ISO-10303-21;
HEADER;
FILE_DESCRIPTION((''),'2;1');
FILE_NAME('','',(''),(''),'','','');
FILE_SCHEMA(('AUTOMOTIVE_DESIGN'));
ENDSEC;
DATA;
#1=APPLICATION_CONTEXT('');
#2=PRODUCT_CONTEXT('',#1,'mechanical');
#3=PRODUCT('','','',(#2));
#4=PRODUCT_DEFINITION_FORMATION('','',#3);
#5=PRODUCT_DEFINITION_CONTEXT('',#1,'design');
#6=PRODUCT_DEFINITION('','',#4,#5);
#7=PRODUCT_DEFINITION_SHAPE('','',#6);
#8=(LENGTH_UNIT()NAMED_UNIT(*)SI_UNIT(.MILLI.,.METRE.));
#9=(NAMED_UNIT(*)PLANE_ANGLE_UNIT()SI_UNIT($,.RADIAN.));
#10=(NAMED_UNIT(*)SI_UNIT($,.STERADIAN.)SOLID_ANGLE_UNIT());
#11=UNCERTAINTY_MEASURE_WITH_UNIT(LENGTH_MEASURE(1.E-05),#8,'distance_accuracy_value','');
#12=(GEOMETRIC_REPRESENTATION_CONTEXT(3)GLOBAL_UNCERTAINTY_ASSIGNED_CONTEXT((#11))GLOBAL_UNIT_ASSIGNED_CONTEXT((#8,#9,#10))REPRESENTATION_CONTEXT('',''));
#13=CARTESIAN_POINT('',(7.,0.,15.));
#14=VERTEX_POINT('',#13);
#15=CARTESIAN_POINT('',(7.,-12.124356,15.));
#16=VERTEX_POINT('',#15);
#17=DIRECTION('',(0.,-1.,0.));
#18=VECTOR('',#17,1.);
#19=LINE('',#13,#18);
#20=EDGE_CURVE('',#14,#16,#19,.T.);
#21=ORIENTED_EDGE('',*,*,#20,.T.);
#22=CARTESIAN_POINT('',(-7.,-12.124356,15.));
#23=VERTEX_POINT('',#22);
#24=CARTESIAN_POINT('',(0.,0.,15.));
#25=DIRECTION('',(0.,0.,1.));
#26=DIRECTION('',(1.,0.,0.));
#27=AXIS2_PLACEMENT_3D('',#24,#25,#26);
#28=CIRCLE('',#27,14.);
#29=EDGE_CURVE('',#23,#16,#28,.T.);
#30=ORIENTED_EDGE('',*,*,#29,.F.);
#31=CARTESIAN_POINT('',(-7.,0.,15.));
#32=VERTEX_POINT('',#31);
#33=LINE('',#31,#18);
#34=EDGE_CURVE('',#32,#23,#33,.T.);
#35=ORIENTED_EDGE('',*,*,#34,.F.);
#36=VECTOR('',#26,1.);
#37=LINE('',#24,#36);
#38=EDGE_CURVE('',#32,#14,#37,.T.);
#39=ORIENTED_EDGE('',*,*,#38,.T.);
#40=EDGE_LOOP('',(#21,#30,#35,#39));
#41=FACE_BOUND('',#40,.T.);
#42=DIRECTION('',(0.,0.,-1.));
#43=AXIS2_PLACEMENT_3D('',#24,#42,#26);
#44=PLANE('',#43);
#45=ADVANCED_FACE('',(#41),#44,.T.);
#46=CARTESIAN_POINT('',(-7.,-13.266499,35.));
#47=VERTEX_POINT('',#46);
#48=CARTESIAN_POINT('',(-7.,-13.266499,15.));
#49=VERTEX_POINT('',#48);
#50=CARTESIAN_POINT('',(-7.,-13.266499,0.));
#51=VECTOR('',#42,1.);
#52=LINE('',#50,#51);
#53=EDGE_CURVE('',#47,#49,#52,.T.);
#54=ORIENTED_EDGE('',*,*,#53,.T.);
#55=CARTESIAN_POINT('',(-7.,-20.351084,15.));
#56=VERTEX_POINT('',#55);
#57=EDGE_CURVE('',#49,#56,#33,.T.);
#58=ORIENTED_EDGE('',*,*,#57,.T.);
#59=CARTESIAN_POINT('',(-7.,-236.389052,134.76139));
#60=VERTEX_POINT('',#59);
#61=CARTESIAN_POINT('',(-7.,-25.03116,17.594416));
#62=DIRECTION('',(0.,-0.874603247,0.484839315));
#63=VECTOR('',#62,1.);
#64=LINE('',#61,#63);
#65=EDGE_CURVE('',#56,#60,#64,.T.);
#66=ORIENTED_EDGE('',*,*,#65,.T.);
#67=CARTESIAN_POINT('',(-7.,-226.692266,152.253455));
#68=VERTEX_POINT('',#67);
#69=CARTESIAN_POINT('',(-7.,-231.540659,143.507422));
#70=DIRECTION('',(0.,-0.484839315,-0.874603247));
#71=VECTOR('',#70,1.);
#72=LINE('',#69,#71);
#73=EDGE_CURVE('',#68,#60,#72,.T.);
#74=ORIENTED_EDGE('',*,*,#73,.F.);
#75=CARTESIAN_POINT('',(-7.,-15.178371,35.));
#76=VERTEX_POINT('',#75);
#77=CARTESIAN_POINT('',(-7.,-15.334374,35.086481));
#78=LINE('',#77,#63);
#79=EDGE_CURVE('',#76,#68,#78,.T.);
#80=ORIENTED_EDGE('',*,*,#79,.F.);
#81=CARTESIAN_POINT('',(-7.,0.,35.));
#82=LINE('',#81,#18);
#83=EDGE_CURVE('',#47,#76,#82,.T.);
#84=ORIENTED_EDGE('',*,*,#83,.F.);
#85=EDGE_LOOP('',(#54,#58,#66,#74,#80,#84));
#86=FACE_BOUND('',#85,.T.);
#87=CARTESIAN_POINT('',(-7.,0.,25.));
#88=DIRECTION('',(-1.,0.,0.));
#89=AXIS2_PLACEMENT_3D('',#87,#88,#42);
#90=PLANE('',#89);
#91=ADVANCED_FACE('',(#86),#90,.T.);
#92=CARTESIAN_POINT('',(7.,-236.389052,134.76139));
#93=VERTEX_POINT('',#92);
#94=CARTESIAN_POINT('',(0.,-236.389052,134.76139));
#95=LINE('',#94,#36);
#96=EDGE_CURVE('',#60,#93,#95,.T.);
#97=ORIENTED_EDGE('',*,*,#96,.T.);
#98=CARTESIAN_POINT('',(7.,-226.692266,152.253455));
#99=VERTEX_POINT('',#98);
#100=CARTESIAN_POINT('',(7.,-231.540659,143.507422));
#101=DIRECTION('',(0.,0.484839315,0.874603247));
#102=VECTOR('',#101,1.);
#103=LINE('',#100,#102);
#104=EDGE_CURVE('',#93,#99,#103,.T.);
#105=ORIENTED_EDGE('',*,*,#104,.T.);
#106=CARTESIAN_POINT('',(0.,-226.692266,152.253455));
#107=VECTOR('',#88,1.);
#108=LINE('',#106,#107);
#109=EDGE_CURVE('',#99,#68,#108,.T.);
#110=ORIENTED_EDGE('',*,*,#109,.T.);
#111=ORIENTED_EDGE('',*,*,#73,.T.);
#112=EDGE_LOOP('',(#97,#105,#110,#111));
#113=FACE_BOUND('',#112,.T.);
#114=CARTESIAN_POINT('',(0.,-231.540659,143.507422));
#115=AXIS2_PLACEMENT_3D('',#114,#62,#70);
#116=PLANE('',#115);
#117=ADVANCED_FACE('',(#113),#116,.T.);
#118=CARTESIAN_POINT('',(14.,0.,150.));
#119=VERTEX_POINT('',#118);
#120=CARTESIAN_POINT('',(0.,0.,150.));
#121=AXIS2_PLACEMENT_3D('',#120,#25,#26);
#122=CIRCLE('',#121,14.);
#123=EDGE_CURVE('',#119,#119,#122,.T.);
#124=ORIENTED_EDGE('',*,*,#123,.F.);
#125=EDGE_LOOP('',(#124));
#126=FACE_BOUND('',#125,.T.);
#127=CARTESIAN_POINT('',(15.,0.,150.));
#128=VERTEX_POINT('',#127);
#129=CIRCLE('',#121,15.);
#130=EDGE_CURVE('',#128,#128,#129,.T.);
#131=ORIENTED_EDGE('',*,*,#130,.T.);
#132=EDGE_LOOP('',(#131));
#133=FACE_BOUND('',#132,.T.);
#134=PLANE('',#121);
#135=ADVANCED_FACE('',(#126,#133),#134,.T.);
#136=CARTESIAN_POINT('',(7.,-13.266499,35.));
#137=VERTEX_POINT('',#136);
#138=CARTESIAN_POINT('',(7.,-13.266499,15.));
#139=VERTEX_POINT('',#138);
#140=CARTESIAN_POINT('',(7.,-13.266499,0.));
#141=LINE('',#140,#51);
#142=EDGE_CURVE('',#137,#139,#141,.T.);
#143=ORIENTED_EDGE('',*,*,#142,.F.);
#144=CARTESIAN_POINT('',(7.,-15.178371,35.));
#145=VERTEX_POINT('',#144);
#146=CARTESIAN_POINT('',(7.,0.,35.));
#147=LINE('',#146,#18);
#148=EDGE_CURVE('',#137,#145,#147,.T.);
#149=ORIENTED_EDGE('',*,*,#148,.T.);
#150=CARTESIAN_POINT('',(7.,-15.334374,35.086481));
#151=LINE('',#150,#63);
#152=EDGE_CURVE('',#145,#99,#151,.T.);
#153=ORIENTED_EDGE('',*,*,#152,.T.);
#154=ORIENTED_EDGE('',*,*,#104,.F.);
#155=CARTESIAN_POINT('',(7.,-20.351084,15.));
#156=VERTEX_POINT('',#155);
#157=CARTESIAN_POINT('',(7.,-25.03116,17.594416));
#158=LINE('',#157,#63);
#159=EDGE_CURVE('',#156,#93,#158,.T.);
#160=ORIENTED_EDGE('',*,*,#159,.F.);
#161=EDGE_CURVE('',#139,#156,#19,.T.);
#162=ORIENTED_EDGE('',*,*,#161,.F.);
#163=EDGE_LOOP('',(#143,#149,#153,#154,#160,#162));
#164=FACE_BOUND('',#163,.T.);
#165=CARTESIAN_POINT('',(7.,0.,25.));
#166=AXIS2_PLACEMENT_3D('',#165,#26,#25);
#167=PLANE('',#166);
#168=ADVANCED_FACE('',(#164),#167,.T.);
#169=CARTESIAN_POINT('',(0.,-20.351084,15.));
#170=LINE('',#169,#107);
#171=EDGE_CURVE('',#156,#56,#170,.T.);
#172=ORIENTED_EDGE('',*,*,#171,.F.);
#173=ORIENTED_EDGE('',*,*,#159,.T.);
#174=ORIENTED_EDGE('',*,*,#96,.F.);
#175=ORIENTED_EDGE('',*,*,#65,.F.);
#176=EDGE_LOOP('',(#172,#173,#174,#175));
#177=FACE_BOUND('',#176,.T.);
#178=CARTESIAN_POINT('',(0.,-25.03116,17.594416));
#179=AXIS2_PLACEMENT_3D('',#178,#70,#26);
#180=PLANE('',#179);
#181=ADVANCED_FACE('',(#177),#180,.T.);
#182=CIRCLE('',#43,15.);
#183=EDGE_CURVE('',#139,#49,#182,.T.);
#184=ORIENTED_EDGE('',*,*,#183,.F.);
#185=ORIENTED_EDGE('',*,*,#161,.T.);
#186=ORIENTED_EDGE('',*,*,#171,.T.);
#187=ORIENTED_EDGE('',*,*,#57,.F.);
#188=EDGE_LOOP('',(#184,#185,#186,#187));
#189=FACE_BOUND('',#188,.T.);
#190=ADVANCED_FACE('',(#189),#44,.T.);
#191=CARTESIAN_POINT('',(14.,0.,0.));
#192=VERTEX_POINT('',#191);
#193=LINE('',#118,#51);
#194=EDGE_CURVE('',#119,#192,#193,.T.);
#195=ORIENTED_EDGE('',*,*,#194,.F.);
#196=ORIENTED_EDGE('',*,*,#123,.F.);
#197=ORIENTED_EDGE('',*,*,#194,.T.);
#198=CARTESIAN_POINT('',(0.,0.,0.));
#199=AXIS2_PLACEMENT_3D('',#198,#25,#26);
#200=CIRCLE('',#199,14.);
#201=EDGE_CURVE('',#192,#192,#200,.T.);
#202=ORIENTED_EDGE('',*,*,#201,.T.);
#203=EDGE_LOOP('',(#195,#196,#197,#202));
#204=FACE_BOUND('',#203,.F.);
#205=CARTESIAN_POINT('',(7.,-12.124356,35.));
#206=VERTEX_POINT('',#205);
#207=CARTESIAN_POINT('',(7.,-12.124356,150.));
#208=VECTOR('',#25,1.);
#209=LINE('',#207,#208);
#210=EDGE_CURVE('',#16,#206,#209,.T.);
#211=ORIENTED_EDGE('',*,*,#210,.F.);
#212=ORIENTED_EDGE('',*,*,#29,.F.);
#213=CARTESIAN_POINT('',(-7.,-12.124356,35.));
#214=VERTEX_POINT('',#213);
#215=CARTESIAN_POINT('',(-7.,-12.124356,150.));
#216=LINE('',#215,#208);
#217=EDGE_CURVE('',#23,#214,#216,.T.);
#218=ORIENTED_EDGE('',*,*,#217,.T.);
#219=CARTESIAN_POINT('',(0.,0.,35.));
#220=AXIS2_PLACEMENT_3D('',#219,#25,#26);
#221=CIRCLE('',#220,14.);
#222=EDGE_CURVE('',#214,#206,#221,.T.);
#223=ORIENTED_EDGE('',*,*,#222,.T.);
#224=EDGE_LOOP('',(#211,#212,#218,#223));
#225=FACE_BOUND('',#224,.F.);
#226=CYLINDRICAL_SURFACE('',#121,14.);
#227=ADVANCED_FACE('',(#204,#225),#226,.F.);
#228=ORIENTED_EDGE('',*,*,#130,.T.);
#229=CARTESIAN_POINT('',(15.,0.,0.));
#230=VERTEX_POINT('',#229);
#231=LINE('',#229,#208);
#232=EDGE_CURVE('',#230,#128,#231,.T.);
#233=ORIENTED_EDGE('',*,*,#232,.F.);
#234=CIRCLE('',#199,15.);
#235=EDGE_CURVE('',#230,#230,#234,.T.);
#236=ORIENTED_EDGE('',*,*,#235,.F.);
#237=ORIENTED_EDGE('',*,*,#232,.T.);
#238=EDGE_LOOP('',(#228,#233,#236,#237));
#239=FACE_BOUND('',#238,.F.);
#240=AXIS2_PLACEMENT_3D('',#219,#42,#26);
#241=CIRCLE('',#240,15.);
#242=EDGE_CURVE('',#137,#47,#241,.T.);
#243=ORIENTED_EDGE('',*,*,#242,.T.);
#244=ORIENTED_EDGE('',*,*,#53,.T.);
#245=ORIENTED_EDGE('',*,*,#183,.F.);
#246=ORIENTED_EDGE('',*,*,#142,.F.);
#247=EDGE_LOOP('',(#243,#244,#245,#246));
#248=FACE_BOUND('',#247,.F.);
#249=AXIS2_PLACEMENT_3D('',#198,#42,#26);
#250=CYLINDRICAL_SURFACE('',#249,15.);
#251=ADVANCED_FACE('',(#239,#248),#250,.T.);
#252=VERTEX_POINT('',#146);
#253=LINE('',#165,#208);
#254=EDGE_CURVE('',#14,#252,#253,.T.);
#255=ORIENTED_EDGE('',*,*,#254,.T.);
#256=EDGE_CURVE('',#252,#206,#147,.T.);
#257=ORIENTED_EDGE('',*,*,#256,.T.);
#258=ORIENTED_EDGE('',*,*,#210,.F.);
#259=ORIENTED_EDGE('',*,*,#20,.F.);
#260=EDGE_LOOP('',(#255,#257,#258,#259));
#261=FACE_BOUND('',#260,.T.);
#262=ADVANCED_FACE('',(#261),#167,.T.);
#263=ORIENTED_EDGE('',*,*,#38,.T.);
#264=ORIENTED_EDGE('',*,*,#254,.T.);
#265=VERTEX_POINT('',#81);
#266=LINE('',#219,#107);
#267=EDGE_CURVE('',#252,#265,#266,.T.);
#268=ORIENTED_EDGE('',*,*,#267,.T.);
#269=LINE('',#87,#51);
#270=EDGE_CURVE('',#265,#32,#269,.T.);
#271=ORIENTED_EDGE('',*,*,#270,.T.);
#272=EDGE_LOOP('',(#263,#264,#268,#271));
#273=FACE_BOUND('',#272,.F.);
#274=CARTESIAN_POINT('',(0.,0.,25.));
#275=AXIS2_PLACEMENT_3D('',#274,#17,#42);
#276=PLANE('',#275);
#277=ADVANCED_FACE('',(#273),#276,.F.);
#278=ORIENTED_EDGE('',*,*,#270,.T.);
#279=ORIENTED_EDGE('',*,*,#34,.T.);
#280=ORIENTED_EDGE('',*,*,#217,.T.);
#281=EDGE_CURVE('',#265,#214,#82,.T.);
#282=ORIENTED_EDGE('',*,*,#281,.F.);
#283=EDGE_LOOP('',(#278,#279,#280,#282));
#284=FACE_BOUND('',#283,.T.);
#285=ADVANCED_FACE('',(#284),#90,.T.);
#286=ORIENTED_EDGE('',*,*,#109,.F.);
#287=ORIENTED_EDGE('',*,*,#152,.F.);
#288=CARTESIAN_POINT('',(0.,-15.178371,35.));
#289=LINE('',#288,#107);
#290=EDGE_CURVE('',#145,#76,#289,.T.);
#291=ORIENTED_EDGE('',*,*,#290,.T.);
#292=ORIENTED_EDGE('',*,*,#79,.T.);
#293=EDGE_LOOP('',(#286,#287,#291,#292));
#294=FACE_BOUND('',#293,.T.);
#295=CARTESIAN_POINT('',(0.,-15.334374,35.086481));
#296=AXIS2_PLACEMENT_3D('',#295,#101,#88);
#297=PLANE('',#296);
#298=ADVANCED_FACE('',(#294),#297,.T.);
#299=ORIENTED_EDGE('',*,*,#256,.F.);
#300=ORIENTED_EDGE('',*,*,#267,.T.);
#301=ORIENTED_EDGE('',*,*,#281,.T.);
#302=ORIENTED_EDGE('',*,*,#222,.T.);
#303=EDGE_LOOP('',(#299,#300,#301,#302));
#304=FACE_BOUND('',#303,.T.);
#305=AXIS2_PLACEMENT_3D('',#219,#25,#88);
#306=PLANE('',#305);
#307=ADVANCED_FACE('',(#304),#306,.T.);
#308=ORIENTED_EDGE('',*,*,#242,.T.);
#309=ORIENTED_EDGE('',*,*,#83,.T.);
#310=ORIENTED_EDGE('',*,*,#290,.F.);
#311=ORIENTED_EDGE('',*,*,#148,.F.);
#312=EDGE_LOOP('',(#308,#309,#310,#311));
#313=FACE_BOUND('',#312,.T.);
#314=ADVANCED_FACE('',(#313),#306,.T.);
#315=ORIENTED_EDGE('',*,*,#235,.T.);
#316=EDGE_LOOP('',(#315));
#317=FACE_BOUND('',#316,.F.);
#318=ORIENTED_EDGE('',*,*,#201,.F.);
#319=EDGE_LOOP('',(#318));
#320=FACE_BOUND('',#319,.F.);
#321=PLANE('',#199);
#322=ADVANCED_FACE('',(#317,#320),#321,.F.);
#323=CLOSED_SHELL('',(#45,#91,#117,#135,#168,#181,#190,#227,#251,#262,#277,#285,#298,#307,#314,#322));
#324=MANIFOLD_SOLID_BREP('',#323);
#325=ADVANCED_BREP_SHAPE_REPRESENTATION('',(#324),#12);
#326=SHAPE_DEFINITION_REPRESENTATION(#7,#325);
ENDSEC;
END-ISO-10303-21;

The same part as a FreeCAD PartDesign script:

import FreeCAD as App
import Part
import Sketcher
from FreeCAD import Vector


def add_polygon(sketch, points):
    """Adds a closed chain of lines whose ends are joined by coincident constraints."""
    first, n = sketch.GeometryCount, len(points)
    for a, b in zip(points, points[1:] + points[:1]):
        sketch.addGeometry(Part.LineSegment(App.Vector(*a, 0), App.Vector(*b, 0)), False)
    for i in range(n):
        sketch.addConstraint(Sketcher.Constraint("Coincident", first + i, 2, first + (i + 1) % n, 1))

doc = App.newDocument("Part")
body = doc.addObject("PartDesign::Body", "Body")

sketch1 = body.newObject("Sketcher::SketchObject", "Sketch")
sketch1.AttachmentSupport = (doc.getObject("XY_Plane"), [""])
sketch1.MapMode = "FlatFace"
sketch1.addGeometry(Part.Circle(Vector(0, 0, 0), Vector(0, 0, 1), 15), False)
sketch1.addConstraint([
    Sketcher.Constraint("Coincident", 0, 3, -1, 1),
    Sketcher.Constraint("Diameter", 0, 30.0),
])
pad1 = body.newObject("PartDesign::Pad", "Pad")
pad1.Profile = sketch1
pad1.Length = 150

sketch2 = body.newObject("Sketcher::SketchObject", "Sketch001")
sketch2.AttachmentSupport = (doc.getObject("XY_Plane"), [""])
sketch2.MapMode = "FlatFace"
sketch2.AttachmentOffset = App.Placement(Vector(0, 0, 150), App.Rotation())
sketch2.addGeometry(Part.Circle(Vector(0, 0, 0), Vector(0, 0, 1), 14), False)
sketch2.addConstraint([
    Sketcher.Constraint("Coincident", 0, 3, -1, 1),
    Sketcher.Constraint("Diameter", 0, 28.0),
])
pocket1 = body.newObject("PartDesign::Pocket", "Pocket")
pocket1.Profile = sketch2
pocket1.Type = "ThroughAll"

sketch3 = body.newObject("Sketcher::SketchObject", "Sketch002")
sketch3.AttachmentSupport = (doc.getObject("XZ_Plane"), [""])
sketch3.MapMode = "FlatFace"
add_polygon(sketch3, [(-7, 35), (-7, 15), (7, 15), (7, 35)])
sketch3.addConstraint([
    Sketcher.Constraint("Vertical", 0),
    Sketcher.Constraint("Horizontal", 1),
    Sketcher.Constraint("Vertical", 2),
    Sketcher.Constraint("Horizontal", 3),
    Sketcher.Constraint("DistanceX", 1, 1, 1, 2, 14.0),
    Sketcher.Constraint("DistanceY", 0, 2, 0, 1, 20.0),
    Sketcher.Constraint("DistanceX", 0, 2, -1, 1, 7.0),
    Sketcher.Constraint("DistanceY", -1, 1, 0, 2, 15.0),
])

sketch4 = body.newObject("Sketcher::SketchObject", "Sketch003")
sketch4.AttachmentSupport = (doc.getObject("YZ_Plane"), [""])
sketch4.MapMode = "FlatFace"
sketch4.addGeometry([
    Part.LineSegment(Vector(0, 36, 0), Vector(-15, 36, 0)),
    Part.LineSegment(Vector(-15, 36, 0), Vector(-226, 153, 0)),
], False)
sketch4.addConstraint([
    Sketcher.Constraint("Coincident", 0, 2, 1, 1),
    Sketcher.Constraint("Horizontal", 0),
    Sketcher.Constraint("PointOnObject", 0, 1, -2),
    Sketcher.Constraint("DistanceX", 0, 2, 0, 1, 15.0),
    Sketcher.Constraint("DistanceY", -1, 1, 0, 1, 35.689659),
    Sketcher.Constraint("Distance", 1, 241.661454),
    Sketcher.Constraint("DistanceX", 1, 2, -1, 1, 226.357892),
])
doc.recompute()

additivepipe = body.newObject("PartDesign::AdditivePipe", "AdditivePipe")
additivepipe.Profile = sketch3
additivepipe.Spine = (sketch4, ["Edge1", "Edge2"])
additivepipe.Transition = "Right corner"
body2 = doc.addObject("PartDesign::Body", "Body001")
body2.AllowCompound = True

sketch5 = body2.newObject("Sketcher::SketchObject", "Sketch004")
sketch5.Placement = App.Placement(Vector(0, 0, 0), App.Rotation(Vector(-1, 0, 0), Vector(0, -0.5, 0.866025404), Vector(0, 0.866025404, 0.5), "ZXY"))
add_polygon(sketch5, [(7, 21), (7, 51), (-7, 51), (-7, 21)])
sketch5.addConstraint([
    Sketcher.Constraint("Vertical", 0),
    Sketcher.Constraint("Horizontal", 1),
    Sketcher.Constraint("Vertical", 2),
    Sketcher.Constraint("Horizontal", 3),
    Sketcher.Constraint("DistanceX", 1, 2, 1, 1, 14.0),
    Sketcher.Constraint("DistanceY", 0, 1, 0, 2, 30.0),
    Sketcher.Constraint("DistanceX", -1, 1, 0, 2, 7.0),
    Sketcher.Constraint("DistanceY", -1, 1, 0, 2, 51.4282),
])
pad2 = body2.newObject("PartDesign::Pad", "Pad001")
pad2.Profile = sketch5
pad2.Length = 250
doc.recompute()

body3 = doc.addObject("PartDesign::Body", "Body002")
body3.BaseFeature = body
boolean = body2.newObject("PartDesign::Boolean", "Boolean")
boolean.Type = "Cut"
boolean.addObjects([body3])
doc.recompute()

doc.recompute()
